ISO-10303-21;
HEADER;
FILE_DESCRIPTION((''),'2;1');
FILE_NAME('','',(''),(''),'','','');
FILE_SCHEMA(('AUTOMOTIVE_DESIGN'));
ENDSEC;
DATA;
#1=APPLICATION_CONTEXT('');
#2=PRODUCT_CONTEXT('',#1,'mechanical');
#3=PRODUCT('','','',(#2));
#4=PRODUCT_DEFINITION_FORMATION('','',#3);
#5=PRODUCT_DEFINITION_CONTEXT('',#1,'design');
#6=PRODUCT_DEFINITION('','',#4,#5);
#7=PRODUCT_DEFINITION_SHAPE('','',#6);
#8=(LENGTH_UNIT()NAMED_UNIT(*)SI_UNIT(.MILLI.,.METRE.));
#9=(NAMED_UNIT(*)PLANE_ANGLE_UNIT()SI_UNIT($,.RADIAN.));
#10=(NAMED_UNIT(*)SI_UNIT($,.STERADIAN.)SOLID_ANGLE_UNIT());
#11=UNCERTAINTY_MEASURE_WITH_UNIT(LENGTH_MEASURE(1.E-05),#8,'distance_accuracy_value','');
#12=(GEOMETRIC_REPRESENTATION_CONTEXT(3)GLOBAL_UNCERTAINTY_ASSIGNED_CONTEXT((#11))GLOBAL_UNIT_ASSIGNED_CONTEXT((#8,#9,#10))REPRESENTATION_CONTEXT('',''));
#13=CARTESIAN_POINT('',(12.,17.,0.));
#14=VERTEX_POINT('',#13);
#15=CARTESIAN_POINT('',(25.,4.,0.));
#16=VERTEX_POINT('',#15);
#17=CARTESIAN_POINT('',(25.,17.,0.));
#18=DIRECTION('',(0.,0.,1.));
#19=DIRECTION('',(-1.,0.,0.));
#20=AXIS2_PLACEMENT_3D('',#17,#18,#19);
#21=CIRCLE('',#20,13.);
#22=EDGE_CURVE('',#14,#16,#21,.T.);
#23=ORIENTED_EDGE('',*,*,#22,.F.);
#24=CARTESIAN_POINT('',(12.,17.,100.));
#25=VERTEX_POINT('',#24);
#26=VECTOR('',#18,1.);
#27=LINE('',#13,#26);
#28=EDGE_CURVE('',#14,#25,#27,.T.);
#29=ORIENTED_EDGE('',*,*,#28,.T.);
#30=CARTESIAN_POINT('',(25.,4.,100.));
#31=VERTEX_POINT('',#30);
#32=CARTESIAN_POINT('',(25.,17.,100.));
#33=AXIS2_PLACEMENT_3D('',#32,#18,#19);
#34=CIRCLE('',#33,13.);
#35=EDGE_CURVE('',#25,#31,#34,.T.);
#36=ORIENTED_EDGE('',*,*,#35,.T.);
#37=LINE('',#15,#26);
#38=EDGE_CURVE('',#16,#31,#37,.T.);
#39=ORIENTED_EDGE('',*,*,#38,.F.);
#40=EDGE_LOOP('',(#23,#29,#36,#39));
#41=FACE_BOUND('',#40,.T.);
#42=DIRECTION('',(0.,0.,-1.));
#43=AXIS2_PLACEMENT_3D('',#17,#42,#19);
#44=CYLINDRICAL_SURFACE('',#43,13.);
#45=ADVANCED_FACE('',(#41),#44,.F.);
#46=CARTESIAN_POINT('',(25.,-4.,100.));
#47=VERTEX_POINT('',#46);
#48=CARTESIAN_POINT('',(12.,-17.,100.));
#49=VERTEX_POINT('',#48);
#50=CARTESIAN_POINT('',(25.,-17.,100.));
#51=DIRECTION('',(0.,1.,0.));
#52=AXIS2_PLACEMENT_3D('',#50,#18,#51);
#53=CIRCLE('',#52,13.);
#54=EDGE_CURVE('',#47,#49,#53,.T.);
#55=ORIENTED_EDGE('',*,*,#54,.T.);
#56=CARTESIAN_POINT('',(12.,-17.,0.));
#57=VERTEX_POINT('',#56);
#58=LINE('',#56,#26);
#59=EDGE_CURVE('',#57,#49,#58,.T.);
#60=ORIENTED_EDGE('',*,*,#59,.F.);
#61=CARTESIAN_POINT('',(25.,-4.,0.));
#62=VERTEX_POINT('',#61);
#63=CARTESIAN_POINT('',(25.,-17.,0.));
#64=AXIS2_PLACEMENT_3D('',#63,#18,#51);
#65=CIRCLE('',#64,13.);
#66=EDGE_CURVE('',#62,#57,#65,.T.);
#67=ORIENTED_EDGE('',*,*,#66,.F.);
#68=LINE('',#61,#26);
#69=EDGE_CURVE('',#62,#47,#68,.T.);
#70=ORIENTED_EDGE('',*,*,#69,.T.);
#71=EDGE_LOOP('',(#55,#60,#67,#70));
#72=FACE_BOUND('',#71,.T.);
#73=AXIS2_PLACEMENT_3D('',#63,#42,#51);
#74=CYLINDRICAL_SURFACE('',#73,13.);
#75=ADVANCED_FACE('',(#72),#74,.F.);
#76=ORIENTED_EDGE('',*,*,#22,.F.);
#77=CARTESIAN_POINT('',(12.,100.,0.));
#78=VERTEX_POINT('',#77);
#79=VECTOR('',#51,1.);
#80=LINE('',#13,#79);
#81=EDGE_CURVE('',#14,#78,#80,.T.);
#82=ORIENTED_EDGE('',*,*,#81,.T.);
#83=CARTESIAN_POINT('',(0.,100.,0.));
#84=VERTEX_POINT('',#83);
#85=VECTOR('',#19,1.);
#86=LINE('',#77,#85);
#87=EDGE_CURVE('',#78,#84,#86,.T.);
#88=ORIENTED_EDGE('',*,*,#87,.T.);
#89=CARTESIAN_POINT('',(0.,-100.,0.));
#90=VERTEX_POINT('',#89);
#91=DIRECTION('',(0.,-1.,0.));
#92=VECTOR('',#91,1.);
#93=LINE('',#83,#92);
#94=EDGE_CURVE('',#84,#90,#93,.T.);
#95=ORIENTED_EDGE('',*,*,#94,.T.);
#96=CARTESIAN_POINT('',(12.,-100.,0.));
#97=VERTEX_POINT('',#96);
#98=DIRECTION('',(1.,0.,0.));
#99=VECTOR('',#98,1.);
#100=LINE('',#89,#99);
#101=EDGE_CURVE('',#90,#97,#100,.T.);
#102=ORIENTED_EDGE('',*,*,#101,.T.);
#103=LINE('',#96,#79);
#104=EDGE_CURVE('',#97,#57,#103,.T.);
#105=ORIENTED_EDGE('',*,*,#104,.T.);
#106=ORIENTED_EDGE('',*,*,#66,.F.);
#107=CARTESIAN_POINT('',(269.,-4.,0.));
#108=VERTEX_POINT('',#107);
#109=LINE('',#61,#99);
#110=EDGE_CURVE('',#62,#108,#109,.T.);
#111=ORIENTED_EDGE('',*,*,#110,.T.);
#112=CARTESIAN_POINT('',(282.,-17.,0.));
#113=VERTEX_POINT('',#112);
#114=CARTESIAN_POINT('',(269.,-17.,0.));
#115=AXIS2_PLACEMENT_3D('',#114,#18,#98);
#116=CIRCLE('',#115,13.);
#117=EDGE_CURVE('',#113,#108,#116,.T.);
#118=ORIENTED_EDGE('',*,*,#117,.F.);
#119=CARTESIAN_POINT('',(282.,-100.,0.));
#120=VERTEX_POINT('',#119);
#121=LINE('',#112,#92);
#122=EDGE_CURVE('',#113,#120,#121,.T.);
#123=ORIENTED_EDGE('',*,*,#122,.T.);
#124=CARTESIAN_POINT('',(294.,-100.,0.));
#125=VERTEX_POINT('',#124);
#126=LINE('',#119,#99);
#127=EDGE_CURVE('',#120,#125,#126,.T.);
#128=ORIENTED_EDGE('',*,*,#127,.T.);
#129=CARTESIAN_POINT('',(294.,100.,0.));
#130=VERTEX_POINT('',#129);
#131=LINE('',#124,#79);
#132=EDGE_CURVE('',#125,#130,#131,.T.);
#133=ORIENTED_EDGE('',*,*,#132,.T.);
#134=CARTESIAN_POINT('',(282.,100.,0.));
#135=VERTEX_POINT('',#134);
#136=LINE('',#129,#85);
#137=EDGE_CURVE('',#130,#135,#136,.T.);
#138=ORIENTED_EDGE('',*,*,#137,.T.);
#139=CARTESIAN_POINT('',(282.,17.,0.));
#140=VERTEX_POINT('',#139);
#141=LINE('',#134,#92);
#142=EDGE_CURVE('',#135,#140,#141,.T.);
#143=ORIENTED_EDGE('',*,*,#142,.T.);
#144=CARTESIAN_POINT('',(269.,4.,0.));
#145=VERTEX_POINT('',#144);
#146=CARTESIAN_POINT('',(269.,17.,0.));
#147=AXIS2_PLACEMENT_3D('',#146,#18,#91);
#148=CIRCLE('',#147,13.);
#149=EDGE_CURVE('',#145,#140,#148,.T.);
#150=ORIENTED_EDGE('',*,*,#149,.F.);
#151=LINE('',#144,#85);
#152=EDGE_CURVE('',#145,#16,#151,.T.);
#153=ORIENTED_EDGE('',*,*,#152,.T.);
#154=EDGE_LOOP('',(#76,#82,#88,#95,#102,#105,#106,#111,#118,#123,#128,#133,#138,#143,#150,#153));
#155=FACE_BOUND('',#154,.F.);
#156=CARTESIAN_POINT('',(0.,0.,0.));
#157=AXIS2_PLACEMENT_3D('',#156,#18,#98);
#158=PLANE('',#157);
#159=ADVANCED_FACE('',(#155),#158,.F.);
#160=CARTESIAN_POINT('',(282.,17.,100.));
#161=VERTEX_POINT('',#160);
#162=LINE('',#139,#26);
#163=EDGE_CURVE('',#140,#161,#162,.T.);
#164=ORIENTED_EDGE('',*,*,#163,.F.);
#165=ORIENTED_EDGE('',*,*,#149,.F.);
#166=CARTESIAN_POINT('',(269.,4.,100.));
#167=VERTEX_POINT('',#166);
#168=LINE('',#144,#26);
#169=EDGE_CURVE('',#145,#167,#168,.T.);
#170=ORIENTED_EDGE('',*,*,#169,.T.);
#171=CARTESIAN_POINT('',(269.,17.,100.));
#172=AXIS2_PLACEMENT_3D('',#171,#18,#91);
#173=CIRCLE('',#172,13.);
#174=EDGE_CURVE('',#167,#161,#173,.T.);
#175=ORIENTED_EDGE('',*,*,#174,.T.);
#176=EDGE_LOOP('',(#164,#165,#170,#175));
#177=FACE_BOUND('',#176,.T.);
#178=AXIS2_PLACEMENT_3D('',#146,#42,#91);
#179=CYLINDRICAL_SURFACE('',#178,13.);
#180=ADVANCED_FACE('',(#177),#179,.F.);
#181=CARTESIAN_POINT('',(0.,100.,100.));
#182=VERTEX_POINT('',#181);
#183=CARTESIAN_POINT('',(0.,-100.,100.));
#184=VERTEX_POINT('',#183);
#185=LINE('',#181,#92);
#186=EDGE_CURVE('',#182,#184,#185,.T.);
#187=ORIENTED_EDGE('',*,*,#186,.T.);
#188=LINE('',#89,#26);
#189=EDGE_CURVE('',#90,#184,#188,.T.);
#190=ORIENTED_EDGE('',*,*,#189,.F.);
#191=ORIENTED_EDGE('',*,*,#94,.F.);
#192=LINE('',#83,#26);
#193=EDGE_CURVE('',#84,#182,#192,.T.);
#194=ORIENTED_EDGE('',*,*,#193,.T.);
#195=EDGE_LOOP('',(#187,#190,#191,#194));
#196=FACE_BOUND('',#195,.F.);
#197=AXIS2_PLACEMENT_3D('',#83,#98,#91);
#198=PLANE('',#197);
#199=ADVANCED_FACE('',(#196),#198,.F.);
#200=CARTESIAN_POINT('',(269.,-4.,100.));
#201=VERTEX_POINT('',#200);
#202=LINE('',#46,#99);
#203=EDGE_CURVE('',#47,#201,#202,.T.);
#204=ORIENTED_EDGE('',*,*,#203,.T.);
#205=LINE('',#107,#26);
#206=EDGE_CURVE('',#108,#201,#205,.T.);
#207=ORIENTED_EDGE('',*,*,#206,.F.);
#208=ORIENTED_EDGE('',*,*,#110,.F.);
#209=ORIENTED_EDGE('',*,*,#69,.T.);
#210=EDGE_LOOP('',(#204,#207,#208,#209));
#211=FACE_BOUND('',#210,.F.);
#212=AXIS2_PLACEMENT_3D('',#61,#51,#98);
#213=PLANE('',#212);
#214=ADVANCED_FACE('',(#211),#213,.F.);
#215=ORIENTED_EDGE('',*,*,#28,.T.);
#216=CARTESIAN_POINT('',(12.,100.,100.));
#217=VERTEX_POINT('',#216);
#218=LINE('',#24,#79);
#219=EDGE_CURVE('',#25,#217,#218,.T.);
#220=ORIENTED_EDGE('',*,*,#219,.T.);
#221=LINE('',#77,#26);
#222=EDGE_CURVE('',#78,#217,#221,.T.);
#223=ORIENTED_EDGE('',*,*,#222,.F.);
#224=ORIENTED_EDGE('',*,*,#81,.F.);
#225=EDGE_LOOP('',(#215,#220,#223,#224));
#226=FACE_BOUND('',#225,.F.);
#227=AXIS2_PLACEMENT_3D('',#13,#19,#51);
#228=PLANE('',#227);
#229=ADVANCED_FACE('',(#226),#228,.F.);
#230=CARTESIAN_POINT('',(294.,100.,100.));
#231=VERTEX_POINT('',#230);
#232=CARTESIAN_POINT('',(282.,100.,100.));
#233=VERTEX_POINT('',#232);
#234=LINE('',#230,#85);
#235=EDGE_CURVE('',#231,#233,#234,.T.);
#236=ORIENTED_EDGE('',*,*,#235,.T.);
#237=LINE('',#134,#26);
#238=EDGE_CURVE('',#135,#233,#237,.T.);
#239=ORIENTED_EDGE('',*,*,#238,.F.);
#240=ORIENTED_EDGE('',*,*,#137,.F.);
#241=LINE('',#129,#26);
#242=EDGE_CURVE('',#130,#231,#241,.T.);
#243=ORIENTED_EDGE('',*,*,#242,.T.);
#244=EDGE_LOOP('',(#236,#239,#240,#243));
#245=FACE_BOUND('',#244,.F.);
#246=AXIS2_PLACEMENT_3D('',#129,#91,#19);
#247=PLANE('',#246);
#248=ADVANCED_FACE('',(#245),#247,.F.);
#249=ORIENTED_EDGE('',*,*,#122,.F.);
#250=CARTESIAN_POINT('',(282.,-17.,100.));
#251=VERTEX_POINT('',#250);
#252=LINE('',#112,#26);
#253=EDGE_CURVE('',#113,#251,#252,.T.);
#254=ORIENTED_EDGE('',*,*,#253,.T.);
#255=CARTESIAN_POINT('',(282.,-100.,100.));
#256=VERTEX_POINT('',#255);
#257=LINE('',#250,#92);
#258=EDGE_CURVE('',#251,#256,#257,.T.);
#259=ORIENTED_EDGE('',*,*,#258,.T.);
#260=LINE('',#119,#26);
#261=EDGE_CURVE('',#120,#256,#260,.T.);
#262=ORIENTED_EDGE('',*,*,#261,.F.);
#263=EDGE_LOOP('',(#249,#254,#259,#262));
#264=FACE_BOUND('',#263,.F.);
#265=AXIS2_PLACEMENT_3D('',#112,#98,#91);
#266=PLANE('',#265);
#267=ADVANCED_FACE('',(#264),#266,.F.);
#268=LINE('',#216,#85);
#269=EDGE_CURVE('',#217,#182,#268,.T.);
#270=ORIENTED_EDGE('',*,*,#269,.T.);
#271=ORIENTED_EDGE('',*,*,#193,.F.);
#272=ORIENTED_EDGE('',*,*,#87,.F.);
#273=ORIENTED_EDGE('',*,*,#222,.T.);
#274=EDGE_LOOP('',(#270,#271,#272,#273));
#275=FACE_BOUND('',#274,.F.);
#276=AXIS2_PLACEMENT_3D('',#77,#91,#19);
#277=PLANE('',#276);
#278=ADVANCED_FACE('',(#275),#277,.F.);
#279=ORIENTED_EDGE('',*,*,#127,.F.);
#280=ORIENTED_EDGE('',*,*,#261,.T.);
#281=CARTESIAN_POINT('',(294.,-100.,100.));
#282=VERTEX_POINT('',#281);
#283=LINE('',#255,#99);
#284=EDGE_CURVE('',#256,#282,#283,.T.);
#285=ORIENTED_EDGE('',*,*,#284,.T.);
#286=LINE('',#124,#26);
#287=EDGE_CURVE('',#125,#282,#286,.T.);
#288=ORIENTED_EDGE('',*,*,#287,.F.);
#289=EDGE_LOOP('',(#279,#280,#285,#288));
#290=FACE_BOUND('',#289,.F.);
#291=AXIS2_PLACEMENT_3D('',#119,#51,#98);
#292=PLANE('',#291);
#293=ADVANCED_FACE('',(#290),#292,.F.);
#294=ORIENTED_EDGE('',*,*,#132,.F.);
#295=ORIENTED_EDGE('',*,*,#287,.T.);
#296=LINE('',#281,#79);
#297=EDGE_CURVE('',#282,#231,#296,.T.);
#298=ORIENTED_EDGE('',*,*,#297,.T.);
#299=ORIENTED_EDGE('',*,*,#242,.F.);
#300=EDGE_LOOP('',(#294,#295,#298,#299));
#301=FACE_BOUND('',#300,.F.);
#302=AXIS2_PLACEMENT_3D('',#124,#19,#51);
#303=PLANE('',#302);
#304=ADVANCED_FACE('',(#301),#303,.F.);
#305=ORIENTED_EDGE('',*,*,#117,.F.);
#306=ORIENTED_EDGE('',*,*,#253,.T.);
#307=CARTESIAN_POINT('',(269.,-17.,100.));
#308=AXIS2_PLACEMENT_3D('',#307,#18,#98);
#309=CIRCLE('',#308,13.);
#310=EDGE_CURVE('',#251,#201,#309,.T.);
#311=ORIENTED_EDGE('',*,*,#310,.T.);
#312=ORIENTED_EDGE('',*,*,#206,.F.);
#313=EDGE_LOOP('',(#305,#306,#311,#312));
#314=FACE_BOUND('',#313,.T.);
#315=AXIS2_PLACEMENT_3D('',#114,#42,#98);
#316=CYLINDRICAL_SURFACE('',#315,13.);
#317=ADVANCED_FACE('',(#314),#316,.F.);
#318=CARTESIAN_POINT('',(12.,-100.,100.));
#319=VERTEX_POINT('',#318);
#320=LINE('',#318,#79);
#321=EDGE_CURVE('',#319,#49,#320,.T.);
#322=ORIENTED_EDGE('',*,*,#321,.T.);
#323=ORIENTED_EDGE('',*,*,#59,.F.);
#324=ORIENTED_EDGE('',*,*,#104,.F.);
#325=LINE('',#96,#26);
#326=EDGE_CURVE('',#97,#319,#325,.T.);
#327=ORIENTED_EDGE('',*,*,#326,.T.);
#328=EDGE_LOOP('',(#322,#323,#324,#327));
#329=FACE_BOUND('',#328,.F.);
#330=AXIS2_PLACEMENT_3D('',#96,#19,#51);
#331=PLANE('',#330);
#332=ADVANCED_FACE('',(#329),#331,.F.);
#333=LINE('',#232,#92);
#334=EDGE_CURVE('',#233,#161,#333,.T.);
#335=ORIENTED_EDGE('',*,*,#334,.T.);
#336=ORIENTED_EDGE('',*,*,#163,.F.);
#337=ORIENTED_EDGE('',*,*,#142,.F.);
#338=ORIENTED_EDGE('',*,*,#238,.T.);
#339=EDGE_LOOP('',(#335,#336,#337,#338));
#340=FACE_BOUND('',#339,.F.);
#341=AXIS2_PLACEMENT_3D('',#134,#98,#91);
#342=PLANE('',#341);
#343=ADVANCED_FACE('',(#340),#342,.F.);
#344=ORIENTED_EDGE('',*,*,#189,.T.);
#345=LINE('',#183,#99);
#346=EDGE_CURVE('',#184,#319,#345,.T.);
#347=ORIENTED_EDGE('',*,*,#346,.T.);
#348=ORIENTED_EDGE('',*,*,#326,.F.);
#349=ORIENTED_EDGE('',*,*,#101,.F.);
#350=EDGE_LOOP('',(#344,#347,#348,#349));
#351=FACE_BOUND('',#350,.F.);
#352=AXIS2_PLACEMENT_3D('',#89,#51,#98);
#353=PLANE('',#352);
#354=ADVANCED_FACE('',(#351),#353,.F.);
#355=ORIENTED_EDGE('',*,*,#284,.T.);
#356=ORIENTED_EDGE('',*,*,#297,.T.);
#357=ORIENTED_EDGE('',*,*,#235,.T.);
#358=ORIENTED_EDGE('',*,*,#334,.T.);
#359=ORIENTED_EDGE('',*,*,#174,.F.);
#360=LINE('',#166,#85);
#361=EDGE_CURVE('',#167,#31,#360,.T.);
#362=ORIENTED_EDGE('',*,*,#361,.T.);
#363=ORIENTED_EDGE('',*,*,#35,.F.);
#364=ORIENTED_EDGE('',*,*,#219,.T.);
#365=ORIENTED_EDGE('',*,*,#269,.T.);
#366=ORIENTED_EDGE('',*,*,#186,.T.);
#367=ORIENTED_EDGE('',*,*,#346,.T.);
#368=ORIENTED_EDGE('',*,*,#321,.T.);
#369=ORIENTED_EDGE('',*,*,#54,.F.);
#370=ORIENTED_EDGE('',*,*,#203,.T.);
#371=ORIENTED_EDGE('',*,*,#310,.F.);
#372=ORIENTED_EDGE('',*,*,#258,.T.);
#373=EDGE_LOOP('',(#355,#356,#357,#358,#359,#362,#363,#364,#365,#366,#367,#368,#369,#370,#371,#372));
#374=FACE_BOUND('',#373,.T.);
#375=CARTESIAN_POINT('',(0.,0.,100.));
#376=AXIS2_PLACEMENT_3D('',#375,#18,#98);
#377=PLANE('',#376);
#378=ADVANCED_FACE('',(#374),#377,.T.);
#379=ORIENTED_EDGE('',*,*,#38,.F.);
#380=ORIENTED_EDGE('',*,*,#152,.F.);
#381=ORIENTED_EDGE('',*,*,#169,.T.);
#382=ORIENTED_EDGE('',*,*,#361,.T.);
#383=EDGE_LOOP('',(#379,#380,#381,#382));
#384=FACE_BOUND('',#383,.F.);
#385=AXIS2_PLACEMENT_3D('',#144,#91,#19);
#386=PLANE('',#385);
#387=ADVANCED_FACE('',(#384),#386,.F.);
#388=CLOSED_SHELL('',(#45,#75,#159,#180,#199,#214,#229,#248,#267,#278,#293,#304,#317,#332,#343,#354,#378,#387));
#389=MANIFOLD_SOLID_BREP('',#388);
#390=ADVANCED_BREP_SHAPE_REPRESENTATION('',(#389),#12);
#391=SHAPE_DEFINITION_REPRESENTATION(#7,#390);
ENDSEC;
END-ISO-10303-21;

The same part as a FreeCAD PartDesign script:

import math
import FreeCAD as App
import Part
import Sketcher

V = App.Vector

doc = App.newDocument("Part")
body = doc.addObject("PartDesign::Body", "Body")

# Sketch on XY plane
sketch1 = body.newObject("Sketcher::SketchObject", "Sketch")
sketch1.AttachmentSupport = (doc.getObject("XY_Plane"), [""])
sketch1.MapMode = "FlatFace"
sketch1.addGeometry(Part.LineSegment(V(12, 100, 0), V(0, 100, 0)), False)
sketch1.addGeometry(Part.LineSegment(V(0, 100, 0), V(0, -100, 0)), False)
sketch1.addGeometry(Part.LineSegment(V(0, -100, 0), V(12, -100, 0)), False)
sketch1.addGeometry(Part.LineSegment(V(12, -100, 0), V(12, -17, 0)), False)
sketch1.addGeometry(Part.ArcOfCircle(Part.Circle(V(25, -17, 0), V(0, 0, 1), 13), math.radians(90), math.radians(180)), False)
sketch1.addGeometry(Part.LineSegment(V(25, -4, 0), V(269, -4, 0)), False)
sketch1.addGeometry(Part.ArcOfCircle(Part.Circle(V(269, -17, 0), V(0, 0, 1), 13), math.radians(0), math.radians(90)), False)
sketch1.addGeometry(Part.LineSegment(V(282, -17, 0), V(282, -100, 0)), False)
sketch1.addGeometry(Part.LineSegment(V(282, -100, 0), V(294, -100, 0)), False)
sketch1.addGeometry(Part.LineSegment(V(294, -100, 0), V(294, 100, 0)), False)
sketch1.addGeometry(Part.LineSegment(V(294, 100, 0), V(282, 100, 0)), False)
sketch1.addGeometry(Part.LineSegment(V(282, 100, 0), V(282, 17, 0)), False)
sketch1.addGeometry(Part.ArcOfCircle(Part.Circle(V(269, 17, 0), V(0, 0, 1), 13), math.radians(-90), math.radians(0)), False)
sketch1.addGeometry(Part.LineSegment(V(269, 4, 0), V(25, 4, 0)), False)
sketch1.addGeometry(Part.ArcOfCircle(Part.Circle(V(25, 17, 0), V(0, 0, 1), 13), math.radians(180), math.radians(270)), False)
sketch1.addGeometry(Part.LineSegment(V(12, 17, 0), V(12, 100, 0)), False)
sketch1.addConstraint(Sketcher.Constraint("Coincident", 0, 2, 1, 1))
sketch1.addConstraint(Sketcher.Constraint("Coincident", 1, 2, 2, 1))
sketch1.addConstraint(Sketcher.Constraint("Coincident", 2, 2, 3, 1))
sketch1.addConstraint(Sketcher.Constraint("Tangent", 3, 2, 4, 2))
sketch1.addConstraint(Sketcher.Constraint("Tangent", 4, 1, 5, 1))
sketch1.addConstraint(Sketcher.Constraint("Tangent", 5, 2, 6, 2))
sketch1.addConstraint(Sketcher.Constraint("Tangent", 6, 1, 7, 1))
sketch1.addConstraint(Sketcher.Constraint("Coincident", 7, 2, 8, 1))
sketch1.addConstraint(Sketcher.Constraint("Coincident", 8, 2, 9, 1))
sketch1.addConstraint(Sketcher.Constraint("Coincident", 9, 2, 10, 1))
sketch1.addConstraint(Sketcher.Constraint("Coincident", 10, 2, 11, 1))
sketch1.addConstraint(Sketcher.Constraint("Tangent", 11, 2, 12, 2))
sketch1.addConstraint(Sketcher.Constraint("Tangent", 12, 1, 13, 1))
sketch1.addConstraint(Sketcher.Constraint("Tangent", 13, 2, 14, 2))
sketch1.addConstraint(Sketcher.Constraint("Tangent", 14, 1, 15, 1))
sketch1.addConstraint(Sketcher.Constraint("Coincident", 15, 2, 0, 1))
sketch1.addConstraint(Sketcher.Constraint("Horizontal", 0))
sketch1.addConstraint(Sketcher.Constraint("Vertical", 1))
sketch1.addConstraint(Sketcher.Constraint("Horizontal", 2))
sketch1.addConstraint(Sketcher.Constraint("Vertical", 3))
sketch1.addConstraint(Sketcher.Constraint("Horizontal", 5))
sketch1.addConstraint(Sketcher.Constraint("Vertical", 7))
sketch1.addConstraint(Sketcher.Constraint("Horizontal", 8))
sketch1.addConstraint(Sketcher.Constraint("Vertical", 9))
sketch1.addConstraint(Sketcher.Constraint("Horizontal", 10))
sketch1.addConstraint(Sketcher.Constraint("Vertical", 11))
sketch1.addConstraint(Sketcher.Constraint("Horizontal", 13))
sketch1.addConstraint(Sketcher.Constraint("Vertical", 15))
sketch1.addConstraint(Sketcher.Constraint("Equal", 4, 6))
sketch1.addConstraint(Sketcher.Constraint("Equal", 6, 12))
sketch1.addConstraint(Sketcher.Constraint("Equal", 12, 14))
sketch1.addConstraint(Sketcher.Constraint("Symmetric", 0, 2, 1, 2, -1, 1))
sketch1.addConstraint(Sketcher.Constraint("Symmetric", 6, 3, 12, 3, -1))
sketch1.addConstraint(Sketcher.Constraint("Horizontal", 2, 2, 7, 2))
sketch1.addConstraint(Sketcher.Constraint("Horizontal", 0, 2, 9, 2))
sketch1.addConstraint(Sketcher.Constraint("Vertical", 4, 3, 14, 3))
sketch1.addConstraint(Sketcher.Constraint("Equal", 2, 8))
sketch1.addConstraint(Sketcher.Constraint("Radius", 4, 13.0))
sketch1.addConstraint(Sketcher.Constraint("DistanceX", 0, 2, 0, 1, 12.0))
sketch1.addConstraint(Sketcher.Constraint("DistanceX", 5, 1, 5, 2, 244.0))
sketch1.addConstraint(Sketcher.Constraint("DistanceY", 1, 2, 1, 1, 200.0))
sketch1.addConstraint(Sketcher.Constraint("DistanceY", 3, 1, 3, 2, 83.0))
pad1 = body.newObject("PartDesign::Pad", "Pad")
pad1.Profile = sketch1
pad1.Length = 100

doc.recompute()
